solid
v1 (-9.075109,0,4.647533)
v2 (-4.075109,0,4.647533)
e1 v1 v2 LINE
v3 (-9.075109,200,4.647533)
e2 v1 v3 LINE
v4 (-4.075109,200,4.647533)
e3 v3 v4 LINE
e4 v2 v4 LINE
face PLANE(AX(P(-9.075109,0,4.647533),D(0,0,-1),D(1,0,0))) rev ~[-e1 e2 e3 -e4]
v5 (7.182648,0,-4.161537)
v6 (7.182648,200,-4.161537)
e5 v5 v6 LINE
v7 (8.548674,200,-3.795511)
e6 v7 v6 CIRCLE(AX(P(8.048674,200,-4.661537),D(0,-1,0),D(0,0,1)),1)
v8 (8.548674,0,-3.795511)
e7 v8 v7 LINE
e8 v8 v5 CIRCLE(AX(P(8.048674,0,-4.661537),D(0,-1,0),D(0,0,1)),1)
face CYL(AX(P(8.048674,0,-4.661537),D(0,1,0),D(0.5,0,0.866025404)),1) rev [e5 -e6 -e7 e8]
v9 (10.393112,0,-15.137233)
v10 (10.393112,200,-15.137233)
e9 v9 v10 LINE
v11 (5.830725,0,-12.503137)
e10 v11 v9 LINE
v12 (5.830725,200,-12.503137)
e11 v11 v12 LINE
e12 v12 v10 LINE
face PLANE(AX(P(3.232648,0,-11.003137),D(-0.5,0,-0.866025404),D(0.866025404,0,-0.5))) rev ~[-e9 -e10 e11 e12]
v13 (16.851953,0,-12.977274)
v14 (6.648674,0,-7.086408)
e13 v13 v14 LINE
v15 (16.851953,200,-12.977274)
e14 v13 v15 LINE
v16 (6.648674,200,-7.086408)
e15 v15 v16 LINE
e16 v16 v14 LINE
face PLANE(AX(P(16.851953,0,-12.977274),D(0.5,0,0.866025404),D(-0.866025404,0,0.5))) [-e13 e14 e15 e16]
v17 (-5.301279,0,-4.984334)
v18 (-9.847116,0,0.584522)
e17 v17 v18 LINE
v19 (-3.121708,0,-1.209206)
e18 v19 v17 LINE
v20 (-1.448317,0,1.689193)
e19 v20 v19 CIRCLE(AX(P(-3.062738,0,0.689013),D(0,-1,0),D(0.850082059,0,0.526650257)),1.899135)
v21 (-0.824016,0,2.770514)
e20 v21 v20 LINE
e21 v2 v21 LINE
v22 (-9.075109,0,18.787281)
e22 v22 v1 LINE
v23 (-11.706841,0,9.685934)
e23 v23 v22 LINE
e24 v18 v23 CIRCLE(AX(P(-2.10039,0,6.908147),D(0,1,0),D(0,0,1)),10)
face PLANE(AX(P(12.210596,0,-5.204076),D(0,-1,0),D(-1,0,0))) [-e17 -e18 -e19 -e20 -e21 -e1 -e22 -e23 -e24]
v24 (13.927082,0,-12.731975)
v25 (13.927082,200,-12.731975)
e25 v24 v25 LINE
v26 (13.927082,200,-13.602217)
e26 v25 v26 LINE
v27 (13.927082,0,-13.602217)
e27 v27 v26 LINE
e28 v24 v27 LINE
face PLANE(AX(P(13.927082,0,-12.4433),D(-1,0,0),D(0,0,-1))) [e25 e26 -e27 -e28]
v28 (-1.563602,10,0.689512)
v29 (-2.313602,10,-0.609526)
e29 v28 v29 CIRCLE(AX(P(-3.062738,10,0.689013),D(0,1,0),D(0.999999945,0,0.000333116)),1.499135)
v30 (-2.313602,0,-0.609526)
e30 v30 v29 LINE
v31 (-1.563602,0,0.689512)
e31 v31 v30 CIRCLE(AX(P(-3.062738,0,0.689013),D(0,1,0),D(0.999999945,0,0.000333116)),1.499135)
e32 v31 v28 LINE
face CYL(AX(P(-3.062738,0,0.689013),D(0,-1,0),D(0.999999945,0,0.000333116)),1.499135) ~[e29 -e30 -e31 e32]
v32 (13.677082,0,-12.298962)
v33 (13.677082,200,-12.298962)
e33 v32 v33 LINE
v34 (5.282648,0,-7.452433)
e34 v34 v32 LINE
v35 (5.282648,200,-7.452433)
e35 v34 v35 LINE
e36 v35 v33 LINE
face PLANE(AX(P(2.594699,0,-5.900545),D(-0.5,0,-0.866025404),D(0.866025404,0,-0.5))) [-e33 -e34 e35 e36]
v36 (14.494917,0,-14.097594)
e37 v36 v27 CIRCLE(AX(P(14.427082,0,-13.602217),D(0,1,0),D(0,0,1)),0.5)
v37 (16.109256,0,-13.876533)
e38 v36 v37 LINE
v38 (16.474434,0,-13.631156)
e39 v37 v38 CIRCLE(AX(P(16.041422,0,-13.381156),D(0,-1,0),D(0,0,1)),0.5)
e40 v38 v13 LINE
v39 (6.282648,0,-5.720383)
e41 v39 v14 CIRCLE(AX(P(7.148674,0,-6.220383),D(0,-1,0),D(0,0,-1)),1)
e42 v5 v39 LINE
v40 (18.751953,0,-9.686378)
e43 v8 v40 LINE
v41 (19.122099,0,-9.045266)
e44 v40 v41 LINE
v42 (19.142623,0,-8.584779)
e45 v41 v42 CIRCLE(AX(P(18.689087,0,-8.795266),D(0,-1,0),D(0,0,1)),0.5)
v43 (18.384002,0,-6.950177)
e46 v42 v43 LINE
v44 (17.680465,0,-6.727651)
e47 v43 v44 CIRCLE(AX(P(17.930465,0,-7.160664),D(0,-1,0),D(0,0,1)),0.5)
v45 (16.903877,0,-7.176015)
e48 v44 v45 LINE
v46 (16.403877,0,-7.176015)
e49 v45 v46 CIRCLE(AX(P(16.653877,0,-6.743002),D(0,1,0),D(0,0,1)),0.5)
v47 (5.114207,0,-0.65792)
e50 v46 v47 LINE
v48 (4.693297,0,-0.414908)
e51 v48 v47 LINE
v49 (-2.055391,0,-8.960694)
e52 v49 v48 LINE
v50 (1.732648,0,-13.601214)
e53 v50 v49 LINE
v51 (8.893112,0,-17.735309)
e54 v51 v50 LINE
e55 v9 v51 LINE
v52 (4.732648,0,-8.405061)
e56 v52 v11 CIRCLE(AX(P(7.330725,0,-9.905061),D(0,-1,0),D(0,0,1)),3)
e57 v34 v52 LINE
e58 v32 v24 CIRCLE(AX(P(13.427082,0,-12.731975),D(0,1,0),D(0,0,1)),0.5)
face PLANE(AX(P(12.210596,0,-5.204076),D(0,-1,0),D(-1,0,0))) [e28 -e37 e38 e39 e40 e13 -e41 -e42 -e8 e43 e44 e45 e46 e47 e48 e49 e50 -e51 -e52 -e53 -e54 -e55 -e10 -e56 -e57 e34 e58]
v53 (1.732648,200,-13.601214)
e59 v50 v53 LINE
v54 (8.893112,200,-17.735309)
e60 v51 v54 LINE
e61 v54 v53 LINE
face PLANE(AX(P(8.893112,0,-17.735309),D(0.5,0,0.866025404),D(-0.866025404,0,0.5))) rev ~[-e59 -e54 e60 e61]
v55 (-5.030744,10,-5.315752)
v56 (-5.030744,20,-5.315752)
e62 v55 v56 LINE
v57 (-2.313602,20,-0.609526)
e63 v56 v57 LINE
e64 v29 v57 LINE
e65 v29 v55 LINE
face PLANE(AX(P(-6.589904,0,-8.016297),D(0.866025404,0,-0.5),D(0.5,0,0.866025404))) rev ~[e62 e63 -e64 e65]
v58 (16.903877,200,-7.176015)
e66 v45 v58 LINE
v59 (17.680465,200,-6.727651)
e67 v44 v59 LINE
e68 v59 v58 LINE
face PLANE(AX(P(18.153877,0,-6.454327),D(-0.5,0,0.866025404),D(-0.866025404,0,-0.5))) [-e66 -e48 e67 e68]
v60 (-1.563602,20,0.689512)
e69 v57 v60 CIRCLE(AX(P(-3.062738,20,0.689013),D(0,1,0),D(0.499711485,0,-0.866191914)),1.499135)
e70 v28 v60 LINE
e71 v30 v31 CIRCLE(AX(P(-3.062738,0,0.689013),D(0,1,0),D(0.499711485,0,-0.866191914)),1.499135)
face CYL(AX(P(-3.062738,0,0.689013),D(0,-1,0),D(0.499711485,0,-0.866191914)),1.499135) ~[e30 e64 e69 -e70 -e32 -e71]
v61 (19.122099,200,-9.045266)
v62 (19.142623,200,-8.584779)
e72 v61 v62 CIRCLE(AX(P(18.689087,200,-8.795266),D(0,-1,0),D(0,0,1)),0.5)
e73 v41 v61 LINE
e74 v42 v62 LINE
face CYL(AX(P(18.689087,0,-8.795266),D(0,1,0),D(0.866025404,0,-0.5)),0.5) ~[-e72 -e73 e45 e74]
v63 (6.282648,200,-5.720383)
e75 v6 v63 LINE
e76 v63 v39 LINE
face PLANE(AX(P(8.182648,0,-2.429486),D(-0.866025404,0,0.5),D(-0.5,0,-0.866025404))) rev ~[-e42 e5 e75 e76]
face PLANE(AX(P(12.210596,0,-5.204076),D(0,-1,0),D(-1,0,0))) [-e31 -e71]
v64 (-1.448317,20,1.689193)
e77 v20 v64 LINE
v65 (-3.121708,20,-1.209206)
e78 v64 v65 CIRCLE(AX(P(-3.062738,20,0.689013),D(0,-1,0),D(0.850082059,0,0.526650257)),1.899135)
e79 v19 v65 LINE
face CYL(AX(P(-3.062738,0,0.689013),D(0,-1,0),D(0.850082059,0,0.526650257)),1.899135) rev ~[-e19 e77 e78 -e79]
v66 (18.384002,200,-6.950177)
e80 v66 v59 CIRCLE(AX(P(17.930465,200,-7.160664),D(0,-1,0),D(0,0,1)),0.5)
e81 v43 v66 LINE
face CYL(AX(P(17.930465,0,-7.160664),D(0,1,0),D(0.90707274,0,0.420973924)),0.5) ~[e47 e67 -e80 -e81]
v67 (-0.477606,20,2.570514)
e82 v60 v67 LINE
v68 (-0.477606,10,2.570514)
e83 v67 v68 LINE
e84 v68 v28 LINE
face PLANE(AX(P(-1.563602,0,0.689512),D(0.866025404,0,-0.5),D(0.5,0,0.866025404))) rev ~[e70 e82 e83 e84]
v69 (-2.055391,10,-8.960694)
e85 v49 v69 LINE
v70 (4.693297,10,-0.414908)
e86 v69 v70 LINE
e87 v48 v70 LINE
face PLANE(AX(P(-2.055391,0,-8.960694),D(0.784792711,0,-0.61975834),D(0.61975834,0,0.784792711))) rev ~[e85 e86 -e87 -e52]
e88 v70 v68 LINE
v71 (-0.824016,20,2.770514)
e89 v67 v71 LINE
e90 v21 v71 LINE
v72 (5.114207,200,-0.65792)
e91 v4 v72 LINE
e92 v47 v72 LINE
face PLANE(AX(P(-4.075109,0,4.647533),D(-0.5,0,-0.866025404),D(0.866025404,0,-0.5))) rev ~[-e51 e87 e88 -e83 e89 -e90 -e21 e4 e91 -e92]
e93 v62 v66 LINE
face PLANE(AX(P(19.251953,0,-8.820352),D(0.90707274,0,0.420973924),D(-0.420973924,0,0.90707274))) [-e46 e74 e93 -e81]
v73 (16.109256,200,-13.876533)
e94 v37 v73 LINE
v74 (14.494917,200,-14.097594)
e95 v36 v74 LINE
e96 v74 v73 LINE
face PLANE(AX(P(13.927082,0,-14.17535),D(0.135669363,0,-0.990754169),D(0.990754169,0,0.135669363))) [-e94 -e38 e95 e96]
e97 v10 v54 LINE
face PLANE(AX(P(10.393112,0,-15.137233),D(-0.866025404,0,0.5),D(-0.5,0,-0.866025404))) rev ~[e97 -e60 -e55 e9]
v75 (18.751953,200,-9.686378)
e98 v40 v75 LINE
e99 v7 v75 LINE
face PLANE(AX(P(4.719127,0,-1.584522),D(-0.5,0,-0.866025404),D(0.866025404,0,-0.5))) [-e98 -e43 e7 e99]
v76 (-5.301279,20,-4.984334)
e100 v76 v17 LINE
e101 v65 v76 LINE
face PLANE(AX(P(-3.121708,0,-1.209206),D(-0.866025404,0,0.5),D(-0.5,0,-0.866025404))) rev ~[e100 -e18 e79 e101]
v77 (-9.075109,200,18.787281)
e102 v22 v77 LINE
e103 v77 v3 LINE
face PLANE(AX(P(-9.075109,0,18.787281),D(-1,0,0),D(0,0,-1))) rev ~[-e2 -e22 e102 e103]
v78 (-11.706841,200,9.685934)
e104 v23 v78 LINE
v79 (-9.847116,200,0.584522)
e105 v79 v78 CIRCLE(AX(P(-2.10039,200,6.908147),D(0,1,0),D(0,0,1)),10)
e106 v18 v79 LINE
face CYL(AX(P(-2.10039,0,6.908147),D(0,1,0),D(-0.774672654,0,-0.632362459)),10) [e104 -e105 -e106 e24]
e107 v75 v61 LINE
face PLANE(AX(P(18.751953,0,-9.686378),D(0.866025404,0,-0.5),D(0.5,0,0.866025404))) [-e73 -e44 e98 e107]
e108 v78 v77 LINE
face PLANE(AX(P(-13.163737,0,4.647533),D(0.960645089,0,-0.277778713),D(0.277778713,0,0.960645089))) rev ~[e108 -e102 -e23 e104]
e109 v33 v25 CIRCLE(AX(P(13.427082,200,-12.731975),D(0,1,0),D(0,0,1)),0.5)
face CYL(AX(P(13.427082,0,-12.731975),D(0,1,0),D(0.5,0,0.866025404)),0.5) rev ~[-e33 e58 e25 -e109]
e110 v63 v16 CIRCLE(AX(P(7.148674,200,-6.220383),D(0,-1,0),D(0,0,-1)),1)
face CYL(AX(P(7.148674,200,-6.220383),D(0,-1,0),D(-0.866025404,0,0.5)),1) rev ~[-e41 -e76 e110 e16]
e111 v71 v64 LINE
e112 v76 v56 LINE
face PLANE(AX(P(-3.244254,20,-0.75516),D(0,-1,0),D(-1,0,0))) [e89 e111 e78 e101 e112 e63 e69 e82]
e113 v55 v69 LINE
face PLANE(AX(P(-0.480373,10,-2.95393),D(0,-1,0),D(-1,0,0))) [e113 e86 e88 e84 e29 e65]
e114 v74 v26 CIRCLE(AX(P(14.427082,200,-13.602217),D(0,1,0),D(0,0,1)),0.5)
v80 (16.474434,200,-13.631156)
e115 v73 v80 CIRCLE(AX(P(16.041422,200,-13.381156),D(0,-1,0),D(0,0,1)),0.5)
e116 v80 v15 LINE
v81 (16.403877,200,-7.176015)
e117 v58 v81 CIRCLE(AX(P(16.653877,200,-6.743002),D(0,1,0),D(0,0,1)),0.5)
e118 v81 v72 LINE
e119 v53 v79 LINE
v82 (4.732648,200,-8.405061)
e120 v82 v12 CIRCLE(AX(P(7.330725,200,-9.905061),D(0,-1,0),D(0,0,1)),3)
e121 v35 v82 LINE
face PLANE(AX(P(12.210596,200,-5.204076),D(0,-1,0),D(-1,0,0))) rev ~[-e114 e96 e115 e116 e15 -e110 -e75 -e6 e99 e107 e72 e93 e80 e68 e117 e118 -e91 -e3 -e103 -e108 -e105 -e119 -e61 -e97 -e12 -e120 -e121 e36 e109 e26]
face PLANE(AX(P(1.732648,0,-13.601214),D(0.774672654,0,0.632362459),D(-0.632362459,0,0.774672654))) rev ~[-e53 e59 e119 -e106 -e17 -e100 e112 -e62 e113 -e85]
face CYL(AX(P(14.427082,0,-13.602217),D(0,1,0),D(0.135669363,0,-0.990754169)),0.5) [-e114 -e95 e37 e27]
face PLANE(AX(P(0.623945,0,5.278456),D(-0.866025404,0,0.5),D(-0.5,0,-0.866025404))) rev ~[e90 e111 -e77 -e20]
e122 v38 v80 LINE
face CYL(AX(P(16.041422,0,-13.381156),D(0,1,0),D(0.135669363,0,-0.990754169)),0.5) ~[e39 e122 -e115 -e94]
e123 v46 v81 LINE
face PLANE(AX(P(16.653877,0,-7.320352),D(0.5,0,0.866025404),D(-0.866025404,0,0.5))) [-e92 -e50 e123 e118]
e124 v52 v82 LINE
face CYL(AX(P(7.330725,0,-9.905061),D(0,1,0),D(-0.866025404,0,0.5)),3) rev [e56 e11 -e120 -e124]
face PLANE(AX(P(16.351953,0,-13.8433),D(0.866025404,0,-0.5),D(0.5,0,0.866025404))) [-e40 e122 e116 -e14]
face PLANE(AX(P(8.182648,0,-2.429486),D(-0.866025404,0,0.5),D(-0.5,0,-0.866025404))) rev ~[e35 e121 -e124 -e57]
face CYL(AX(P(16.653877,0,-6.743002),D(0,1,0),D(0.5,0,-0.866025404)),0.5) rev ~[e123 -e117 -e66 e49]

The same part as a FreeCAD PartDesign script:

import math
import FreeCAD as App
import Part
import Sketcher

V = App.Vector
Q = App.Units.Quantity


def edges_at(feature, points):
    """Names of the edges that pass closest to the given points."""
    edges = feature.Shape.Edges
    near = lambda p: min(range(len(edges)), key=lambda i: edges[i].distToShape(Part.Vertex(*p))[0])
    return sorted({f"Edge{near(p) + 1}" for p in points})

doc = App.newDocument("Part")
body = doc.addObject("PartDesign::Body", "Body")

sketch1 = body.newObject("Sketcher::SketchObject", "Sketch")
sketch1.AttachmentSupport = (doc.getObject("XZ_Plane"), [""])
sketch1.MapMode = "FlatFace"
sketch1.addGeometry([
    Part.LineSegment(V(16.4, -13.8, 0), V(13.9, -14.2, 0)),
    Part.LineSegment(V(13.9, -14.2, 0), V(13.9, -12.4, 0)),
    Part.LineSegment(V(13.9, -12.4, 0), V(2.6, -5.9, 0)),
    Part.LineSegment(V(2.6, -5.9, 0), V(3.1, -5, 0)),
    Part.LineSegment(V(3.1, -5, 0), V(16.9, -13, 0)),
    Part.LineSegment(V(16.9, -13, 0), V(16.4, -13.8, 0)),
], False)
sketch1.addConstraint([
    Sketcher.Constraint("Coincident", 0, 2, 1, 1),
    Sketcher.Constraint("Coincident", 1, 2, 2, 1),
    Sketcher.Constraint("Coincident", 2, 2, 3, 1),
    Sketcher.Constraint("Coincident", 3, 2, 4, 1),
    Sketcher.Constraint("Coincident", 4, 2, 5, 1),
    Sketcher.Constraint("Coincident", 5, 2, 0, 1),
    Sketcher.Constraint("Vertical", 1),
    Sketcher.Constraint("Parallel", 2, 4),
    Sketcher.Constraint("Perpendicular", 4, 5),
    Sketcher.Constraint("Angle", 2, Q("150 deg")),
    Sketcher.Constraint("Distance", 5, Q("1 mm")),
    Sketcher.Constraint("DistanceY", 5, 2, 1, 2, Q("1.4 mm")),
    Sketcher.Constraint("Distance", 0, Q("2.4475 mm")),
    Sketcher.Constraint("DistanceY", 1, 1, 1, 2, Q("1.732051 mm")),
    Sketcher.Constraint("DistanceY", 1, 2, -1, 1, Q("12.4433 mm")),
    Sketcher.Constraint("DistanceX", -1, 1, 2, 2, Q("2.594699 mm")),
    Sketcher.Constraint("Distance", 2, Q("13.085508 mm")),
    Sketcher.Constraint("Distance", 3, Q("1.000822 mm")),
])
pad1 = body.newObject("PartDesign::Pad", "Pad")
pad1.Profile = sketch1
pad1.Length = 200
pad1.Reversed = True
doc.recompute()

fillet = body.newObject("PartDesign::Fillet", "Fillet")
fillet.Base = (pad1, edges_at(pad1, [(13.927, 100, -14.175), (16.352, 100, -13.843), (13.927, 100, -12.443)]))
fillet.Radius = 0.5
body2 = doc.addObject("PartDesign::Body", "Body001")

sketch2 = body2.newObject("Sketcher::SketchObject", "Sketch001")
sketch2.AttachmentSupport = (doc.getObject("XZ_Plane001"), [""])
sketch2.MapMode = "FlatFace"
sketch2.addGeometry([
    Part.LineSegment(V(19.3, -8.8, 0), V(18.8, -9.7, 0)),
    Part.LineSegment(V(18.8, -9.7, 0), V(4.7, -1.6, 0)),
    Part.LineSegment(V(4.7, -1.6, 0), V(5.1, -0.7, 0)),
    Part.LineSegment(V(5.1, -0.7, 0), V(16.7, -7.3, 0)),
    Part.LineSegment(V(16.7, -7.3, 0), V(18.2, -6.5, 0)),
    Part.LineSegment(V(18.2, -6.5, 0), V(19.3, -8.8, 0)),
], False)
sketch2.addConstraint([
    Sketcher.Constraint("Coincident", 0, 2, 1, 1),
    Sketcher.Constraint("Coincident", 1, 2, 2, 1),
    Sketcher.Constraint("Coincident", 2, 2, 3, 1),
    Sketcher.Constraint("Coincident", 3, 2, 4, 1),
    Sketcher.Constraint("Coincident", 4, 2, 5, 1),
    Sketcher.Constraint("Coincident", 5, 2, 0, 1),
    Sketcher.Constraint("Perpendicular", 0, 1),
    Sketcher.Constraint("Parallel", 1, 3),
    Sketcher.Constraint("Angle", 0, Q("-120 deg")),
    Sketcher.Constraint("Angle", 4, Q("30 deg")),
    Sketcher.Constraint("Distance", 0, Q("1 mm")),
    Sketcher.Constraint("DistanceX", 3, 2, 4, 2, Q("1.5 mm")),
    Sketcher.Constraint("DistanceY", 5, 2, 3, 2, Q("1.5 mm")),
    Sketcher.Constraint("DistanceY", 1, 2, 2, 2, Q("0.926601 mm")),
    Sketcher.Constraint("Distance", 1, Q("16.203712 mm")),
    Sketcher.Constraint("Distance", 5, Q("2.608419 mm")),
    Sketcher.Constraint("DistanceY", 1, 2, -1, 1, Q("1.584522 mm")),
    Sketcher.Constraint("DistanceX", -1, 1, 0, 2, Q("18.751953 mm")),
])
pad2 = body2.newObject("PartDesign::Pad", "Pad001")
pad2.Profile = sketch2
pad2.Length = 200
pad2.Reversed = True
doc.recompute()

fillet2 = body2.newObject("PartDesign::Fillet", "Fillet001")
fillet2.Base = (pad2, edges_at(pad2, [(19.252, 100, -8.82), (18.154, 100, -6.454), (16.654, 100, -7.32)]))
fillet2.Radius = 0.5
body.AllowCompound = True
doc.recompute()

boolean = body.newObject("PartDesign::Boolean", "Boolean")
boolean.Type = "Fuse"
boolean.addObjects([body2])

sketch3 = body.newObject("Sketcher::SketchObject", "Sketch002")
sketch3.AttachmentSupport = (doc.getObject("XZ_Plane"), [""])
sketch3.MapMode = "FlatFace"
sketch3.addGeometry([
    Part.LineSegment(V(8.2, -2.4, 0), V(3.2, -11, 0)),
    Part.LineSegment(V(3.2, -11, 0), V(10.4, -15.1, 0)),
    Part.LineSegment(V(10.4, -15.1, 0), V(8.9, -17.7, 0)),
    Part.LineSegment(V(8.9, -17.7, 0), V(1.7, -13.6, 0)),
    Part.LineSegment(V(1.7, -13.6, 0), V(-13.2, 4.6, 0)),
    Part.LineSegment(V(-13.2, 4.6, 0), V(-9.1, 18.8, 0)),
    Part.LineSegment(V(-9.1, 18.8, 0), V(-9.1, 4.6, 0)),
    Part.LineSegment(V(-9.1, 4.6, 0), V(-4.1, 4.6, 0)),
    Part.LineSegment(V(-4.1, 4.6, 0), V(8.2, -2.4, 0)),
], False)
sketch3.addConstraint([
    Sketcher.Constraint("Coincident", 0, 2, 1, 1),
    Sketcher.Constraint("Coincident", 1, 2, 2, 1),
    Sketcher.Constraint("Coincident", 2, 2, 3, 1),
    Sketcher.Constraint("Coincident", 3, 2, 4, 1),
    Sketcher.Constraint("Coincident", 4, 2, 5, 1),
    Sketcher.Constraint("Coincident", 5, 2, 6, 1),
    Sketcher.Constraint("Coincident", 6, 2, 7, 1),
    Sketcher.Constraint("Coincident", 7, 2, 8, 1),
    Sketcher.Constraint("Coincident", 8, 2, 0, 1),
    Sketcher.Constraint("Vertical", 6),
    Sketcher.Constraint("Horizontal", 7),
    Sketcher.Constraint("Perpendicular", 0, 1),
    Sketcher.Constraint("Perpendicular", 1, 2),
    Sketcher.Constraint("Perpendicular", 2, 3),
    Sketcher.Constraint("Parallel", 3, 8),
    Sketcher.Constraint("Horizontal", 4, 2, 6, 2),
    Sketcher.Constraint("Equal", 1, 3),
    Sketcher.Constraint("DistanceX", 7, 1, 7, 2, Q("5 mm")),
    Sketcher.Constraint("Angle", 0, Q("-120 deg")),
    Sketcher.Constraint("Distance", 2, Q("3 mm")),
    Sketcher.Constraint("Distance", 0, Q("9.9 mm")),
    Sketcher.Constraint("DistanceY", 6, 2, 6, 1, Q("14.139748 mm")),
    Sketcher.Constraint("Distance", 1, Q("8.268191 mm")),
    Sketcher.Constraint("Distance", 4, Q("23.55672 mm")),
    Sketcher.Constraint("Distance", 8, Q("14.154038 mm")),
    Sketcher.Constraint("DistanceX", -1, 1, 0, 2, Q("3.232648 mm")),
    Sketcher.Constraint("DistanceY", 2, 2, -1, 1, Q("17.735309 mm")),
])
pad3 = body.newObject("PartDesign::Pad", "Pad002")
pad3.Profile = sketch3
pad3.Length = 200
pad3.Reversed = True
doc.recompute()

fillet3 = body.newObject("PartDesign::Fillet", "Fillet002")
fillet3.Base = (pad3, edges_at(pad3, [(-13.164, 100, 4.648)]))
fillet3.Radius = 10
doc.recompute()

fillet4 = body.newObject("PartDesign::Fillet", "Fillet003")
fillet4.Base = (fillet3, edges_at(fillet3, [(5.783, 100, -6.586), (7.683, 100, -3.296)]))
fillet4.Radius = 1
doc.recompute()

fillet5 = body.newObject("PartDesign::Fillet", "Fillet004")
fillet5.Base = (fillet4, edges_at(fillet4, [(3.233, 100, -11.003)]))
fillet5.Radius = 3

sketch4 = body.newObject("Sketcher::SketchObject", "Sketch003")
sketch4.AttachmentSupport = (doc.getObject("XZ_Plane"), [""])
sketch4.MapMode = "FlatFace"
sketch4.addGeometry([
    Part.LineSegment(V(-2.31, -0.61, 0), V(-6.59, -8.02, 0)),
    Part.LineSegment(V(-6.59, -8.02, 0), V(-6.94, -7.82, 0)),
    Part.LineSegment(V(-6.94, -7.82, 0), V(-3.12, -1.21, 0)),
    Part.ArcOfCircle(Part.Circle(V(-3.06, 0.69, 0), V(0, 0, 1), 1.9), math.radians(32), math.radians(268)),
    Part.LineSegment(V(-1.45, 1.69, 0), V(0.62, 5.28, 0)),
    Part.LineSegment(V(0.62, 5.28, 0), V(0.97, 5.08, 0)),
    Part.LineSegment(V(0.97, 5.08, 0), V(-1.56, 0.69, 0)),
    Part.ArcOfCircle(Part.Circle(V(-3.06, 0.69, 0), V(0, 0, 1), 1.5), math.radians(0), math.radians(300)),
], False)
sketch4.addConstraint([
    Sketcher.Constraint("Coincident", 0, 2, 1, 1),
    Sketcher.Constraint("Coincident", 1, 2, 2, 1),
    Sketcher.Constraint("Coincident", 2, 2, 3, 2),
    Sketcher.Constraint("Coincident", 3, 1, 4, 1),
    Sketcher.Constraint("Coincident", 4, 2, 5, 1),
    Sketcher.Constraint("Coincident", 5, 2, 6, 1),
    Sketcher.Constraint("Coincident", 6, 2, 7, 1),
    Sketcher.Constraint("Coincident", 7, 2, 0, 1),
    Sketcher.Constraint("Coincident", 7, 3, 3, 3),
    Sketcher.Constraint("Perpendicular", 0, 1),
    Sketcher.Constraint("Perpendicular", 1, 2),
    Sketcher.Constraint("Parallel", 2, 4),
    Sketcher.Constraint("Perpendicular", 4, 5),
    Sketcher.Constraint("Perpendicular", 5, 6),
    Sketcher.Constraint("Equal", 1, 5),
    Sketcher.Constraint("Angle", 0, Q("-120 deg")),
    Sketcher.Constraint("Distance", 1, Q("0.4 mm")),
    Sketcher.Constraint("DistanceX", 7, 2, 6, 2, Q("0.75 mm")),
    Sketcher.Constraint("Radius", 3, Q("1.899135 mm")),
    Sketcher.Constraint("Radius", 7, Q("1.499135 mm")),
    Sketcher.Constraint("DistanceY", 2, 2, 3, 1, Q("2.898399 mm")),
    Sketcher.Constraint("Distance", 2, Q("7.629211 mm")),
    Sketcher.Constraint("DistanceX", 2, 2, -1, 1, Q("3.121708 mm")),
    Sketcher.Constraint("DistanceX", 3, 1, 4, 2, Q("2.072262 mm")),
    Sketcher.Constraint("DistanceY", -1, 1, 3, 3, Q("0.689013 mm")),
])
pocket1 = body.newObject("PartDesign::Pocket", "Pocket")
pocket1.Profile = sketch4
pocket1.Length = 20

sketch5 = body.newObject("Sketcher::SketchObject", "Sketch004")
sketch5.AttachmentSupport = (doc.getObject("XZ_Plane"), [""])
sketch5.MapMode = "FlatFace"
sketch5.addGeometry([
    Part.LineSegment(V(-5, -5.3, 0), V(-2.3, -0.6, 0)),
    Part.ArcOfCircle(Part.Circle(V(-3.1, 0.7, 0), V(0, 0, 1), 1.5), math.radians(-60), math.radians(0)),
    Part.LineSegment(V(-1.6, 0.7, 0), V(-0.5, 2.6, 0)),
    Part.LineSegment(V(-0.5, 2.6, 0), V(4.7, -0.4, 0)),
    Part.LineSegment(V(4.7, -0.4, 0), V(-2.1, -9, 0)),
    Part.LineSegment(V(-2.1, -9, 0), V(-5, -5.3, 0)),
], False)
sketch5.addConstraint([
    Sketcher.Constraint("Coincident", 0, 2, 1, 1),
    Sketcher.Constraint("Coincident", 1, 2, 2, 1),
    Sketcher.Constraint("Coincident", 2, 2, 3, 1),
    Sketcher.Constraint("Coincident", 3, 2, 4, 1),
    Sketcher.Constraint("Coincident", 4, 2, 5, 1),
    Sketcher.Constraint("Coincident", 5, 2, 0, 1),
    Sketcher.Constraint("Parallel", 0, 2),
    Sketcher.Constraint("Perpendicular", 2, 3),
    Sketcher.Constraint("Angle", 0, Q("60 deg")),
    Sketcher.Constraint("DistanceX", 0, 2, 1, 2, Q("0.75 mm")),
    Sketcher.Constraint("Radius", 1, Q("1.499135 mm")),
    Sketcher.Constraint("DistanceY", 1, 2, 2, 2, Q("1.881002 mm")),
    Sketcher.Constraint("DistanceY", 1, 3, 1, 2, Q("0.000499 mm")),
    Sketcher.Constraint("DistanceX", 1, 2, 3, 2, Q("6.2569 mm")),
    Sketcher.Constraint("DistanceY", 3, 2, -1, 1, Q("0.414908 mm")),
    Sketcher.Constraint("DistanceX", 4, 2, -1, 1, Q("2.055391 mm")),
    Sketcher.Constraint("DistanceX", 0, 2, 4, 2, Q("0.258211 mm")),
    Sketcher.Constraint("DistanceY", 4, 2, 0, 2, Q("8.351168 mm")),
    Sketcher.Constraint("DistanceY", 4, 2, 5, 2, Q("3.644941 mm")),
])
pocket2 = body.newObject("PartDesign::Pocket", "Pocket001")
pocket2.Profile = sketch5
pocket2.Length = 10

doc.recompute()
